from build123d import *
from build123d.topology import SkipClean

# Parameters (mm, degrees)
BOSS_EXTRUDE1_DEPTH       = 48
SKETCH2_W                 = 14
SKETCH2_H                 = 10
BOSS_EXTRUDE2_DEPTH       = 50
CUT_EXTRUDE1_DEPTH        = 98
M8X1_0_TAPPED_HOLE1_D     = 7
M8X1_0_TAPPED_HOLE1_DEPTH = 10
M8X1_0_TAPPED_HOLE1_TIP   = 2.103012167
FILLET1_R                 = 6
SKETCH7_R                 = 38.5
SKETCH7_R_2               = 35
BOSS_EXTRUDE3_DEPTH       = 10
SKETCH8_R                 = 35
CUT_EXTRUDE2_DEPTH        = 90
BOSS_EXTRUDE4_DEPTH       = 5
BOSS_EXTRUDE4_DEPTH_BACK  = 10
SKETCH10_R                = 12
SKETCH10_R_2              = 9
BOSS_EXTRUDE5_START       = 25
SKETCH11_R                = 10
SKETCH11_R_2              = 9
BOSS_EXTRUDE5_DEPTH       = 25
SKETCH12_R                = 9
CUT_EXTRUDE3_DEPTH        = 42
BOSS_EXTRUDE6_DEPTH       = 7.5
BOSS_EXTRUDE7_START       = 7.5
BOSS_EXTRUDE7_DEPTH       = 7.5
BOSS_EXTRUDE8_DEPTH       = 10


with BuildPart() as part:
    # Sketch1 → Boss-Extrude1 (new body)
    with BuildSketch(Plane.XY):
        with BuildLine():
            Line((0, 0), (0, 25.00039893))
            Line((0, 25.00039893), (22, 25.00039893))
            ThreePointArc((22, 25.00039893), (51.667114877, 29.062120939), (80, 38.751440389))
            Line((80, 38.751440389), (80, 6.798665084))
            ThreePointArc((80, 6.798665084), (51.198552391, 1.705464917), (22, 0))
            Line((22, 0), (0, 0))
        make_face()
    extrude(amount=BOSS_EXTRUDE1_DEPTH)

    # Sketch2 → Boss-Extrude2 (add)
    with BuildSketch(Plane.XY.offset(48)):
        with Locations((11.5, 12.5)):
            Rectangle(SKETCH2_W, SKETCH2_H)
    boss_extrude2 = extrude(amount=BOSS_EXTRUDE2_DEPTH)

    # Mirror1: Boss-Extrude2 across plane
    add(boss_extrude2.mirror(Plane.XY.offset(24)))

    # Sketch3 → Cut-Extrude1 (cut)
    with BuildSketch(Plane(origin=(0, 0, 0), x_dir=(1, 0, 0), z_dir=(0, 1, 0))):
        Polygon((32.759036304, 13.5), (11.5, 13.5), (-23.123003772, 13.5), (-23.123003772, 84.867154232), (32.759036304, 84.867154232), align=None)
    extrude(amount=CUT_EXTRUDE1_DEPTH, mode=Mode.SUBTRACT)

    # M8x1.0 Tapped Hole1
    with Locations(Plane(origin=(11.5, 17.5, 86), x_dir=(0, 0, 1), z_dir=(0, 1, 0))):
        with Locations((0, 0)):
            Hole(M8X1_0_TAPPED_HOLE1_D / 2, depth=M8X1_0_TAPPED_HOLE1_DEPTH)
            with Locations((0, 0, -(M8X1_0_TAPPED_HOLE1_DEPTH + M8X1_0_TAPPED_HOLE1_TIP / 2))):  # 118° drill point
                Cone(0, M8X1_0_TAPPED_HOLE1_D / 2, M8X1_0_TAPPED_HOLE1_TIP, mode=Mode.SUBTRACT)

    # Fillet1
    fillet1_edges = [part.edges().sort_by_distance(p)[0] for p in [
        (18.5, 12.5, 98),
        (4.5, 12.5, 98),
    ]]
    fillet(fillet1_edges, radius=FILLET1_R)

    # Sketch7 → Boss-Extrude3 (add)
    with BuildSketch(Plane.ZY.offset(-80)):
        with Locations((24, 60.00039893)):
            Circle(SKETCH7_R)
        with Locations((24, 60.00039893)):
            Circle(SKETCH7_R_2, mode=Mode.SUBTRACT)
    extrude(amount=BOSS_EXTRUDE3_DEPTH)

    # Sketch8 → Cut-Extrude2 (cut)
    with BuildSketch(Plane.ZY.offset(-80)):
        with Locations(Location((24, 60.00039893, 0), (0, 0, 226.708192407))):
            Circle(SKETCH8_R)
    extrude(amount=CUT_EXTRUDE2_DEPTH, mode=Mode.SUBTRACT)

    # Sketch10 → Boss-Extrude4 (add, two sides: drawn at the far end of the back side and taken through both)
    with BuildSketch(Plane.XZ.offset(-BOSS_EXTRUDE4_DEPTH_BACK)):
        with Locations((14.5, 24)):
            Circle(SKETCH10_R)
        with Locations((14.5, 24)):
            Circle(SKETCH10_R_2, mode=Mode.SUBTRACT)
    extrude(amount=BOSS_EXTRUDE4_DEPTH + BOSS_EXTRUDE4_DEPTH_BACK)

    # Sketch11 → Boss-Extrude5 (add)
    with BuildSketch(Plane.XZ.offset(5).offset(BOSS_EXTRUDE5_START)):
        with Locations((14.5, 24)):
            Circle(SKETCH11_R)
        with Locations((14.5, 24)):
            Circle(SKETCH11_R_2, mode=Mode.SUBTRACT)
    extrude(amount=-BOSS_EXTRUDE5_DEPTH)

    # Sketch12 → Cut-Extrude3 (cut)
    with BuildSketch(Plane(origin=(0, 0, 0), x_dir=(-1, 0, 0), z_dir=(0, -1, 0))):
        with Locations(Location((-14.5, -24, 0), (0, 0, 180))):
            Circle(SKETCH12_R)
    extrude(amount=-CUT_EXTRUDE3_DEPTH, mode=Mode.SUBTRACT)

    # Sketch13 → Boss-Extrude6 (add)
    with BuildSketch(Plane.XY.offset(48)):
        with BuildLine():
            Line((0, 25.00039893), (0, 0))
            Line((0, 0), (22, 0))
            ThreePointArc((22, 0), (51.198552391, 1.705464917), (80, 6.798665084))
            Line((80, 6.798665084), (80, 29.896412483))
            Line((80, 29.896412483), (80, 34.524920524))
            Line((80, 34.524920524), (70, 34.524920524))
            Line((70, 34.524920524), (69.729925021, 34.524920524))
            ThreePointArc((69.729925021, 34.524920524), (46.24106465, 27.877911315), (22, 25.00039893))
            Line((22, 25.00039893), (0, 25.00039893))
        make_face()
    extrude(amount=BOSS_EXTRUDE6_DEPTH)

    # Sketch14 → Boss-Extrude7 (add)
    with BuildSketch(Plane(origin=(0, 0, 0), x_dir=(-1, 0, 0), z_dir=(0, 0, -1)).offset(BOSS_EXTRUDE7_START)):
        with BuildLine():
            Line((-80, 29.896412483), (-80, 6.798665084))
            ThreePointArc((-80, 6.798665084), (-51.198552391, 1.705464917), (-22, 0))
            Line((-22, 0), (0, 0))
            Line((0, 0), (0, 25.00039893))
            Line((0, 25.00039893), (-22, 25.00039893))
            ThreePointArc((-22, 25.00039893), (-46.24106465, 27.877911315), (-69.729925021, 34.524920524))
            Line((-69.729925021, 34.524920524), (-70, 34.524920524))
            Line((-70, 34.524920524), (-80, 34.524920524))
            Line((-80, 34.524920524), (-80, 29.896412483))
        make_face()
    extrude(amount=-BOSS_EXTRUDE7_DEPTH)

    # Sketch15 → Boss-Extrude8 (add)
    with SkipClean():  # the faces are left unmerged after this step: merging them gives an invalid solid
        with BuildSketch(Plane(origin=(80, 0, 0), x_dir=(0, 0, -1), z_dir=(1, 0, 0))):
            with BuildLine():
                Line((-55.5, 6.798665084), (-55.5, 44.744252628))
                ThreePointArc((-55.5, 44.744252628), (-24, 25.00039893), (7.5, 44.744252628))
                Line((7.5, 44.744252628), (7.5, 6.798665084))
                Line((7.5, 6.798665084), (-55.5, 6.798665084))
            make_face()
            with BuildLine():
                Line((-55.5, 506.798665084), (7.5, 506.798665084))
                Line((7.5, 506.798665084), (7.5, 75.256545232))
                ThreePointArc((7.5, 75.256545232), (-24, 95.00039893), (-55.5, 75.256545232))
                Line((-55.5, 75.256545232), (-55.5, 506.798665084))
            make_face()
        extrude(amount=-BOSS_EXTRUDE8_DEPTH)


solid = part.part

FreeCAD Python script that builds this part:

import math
import FreeCAD as App
import Part
import Sketcher
from FreeCAD import Vector
Q = App.Units.Quantity


def edges_at(feature, points):
    """Names of the edges that pass closest to the given points."""
    edges = feature.Shape.Edges
    near = lambda p: min(range(len(edges)), key=lambda i: edges[i].distToShape(Part.Vertex(*p))[0])
    return sorted({f"Edge{near(p) + 1}" for p in points})


def add_polygon(sketch, points):
    """Adds a closed chain of lines whose ends are joined by coincident constraints."""
    first, n = sketch.GeometryCount, len(points)
    for a, b in zip(points, points[1:] + points[:1]):
        sketch.addGeometry(Part.LineSegment(App.Vector(*a, 0), App.Vector(*b, 0)), False)
    for i in range(n):
        sketch.addConstraint(Sketcher.Constraint("Coincident", first + i, 2, first + (i + 1) % n, 1))

doc = App.newDocument("Part")
body = doc.addObject("PartDesign::Body", "Body")

# Sketch on XY plane
sketch1 = body.newObject("Sketcher::SketchObject", "Sketch")
sketch1.AttachmentSupport = (doc.getObject("XY_Plane"), [""])
sketch1.MapMode = "FlatFace"
sketch1.addGeometry([
    Part.LineSegment(Vector(0, 25, 0), Vector(0, 0, 0)),  # 0
    Part.LineSegment(Vector(0, 0, 0), Vector(22, 0, 0)),  # 1
    Part.ArcOfCircle(Part.Circle(Vector(22, 251, 0), Vector(0, 0, 1), 251), math.radians(-90), math.radians(-76.63)),  # 2
    Part.LineSegment(Vector(80, 7, 0), Vector(80, 39, 0)),  # 3
    Part.ArcOfCircle(Part.Circle(Vector(16, 180, 0), Vector(0, 0, 1), 155), math.radians(-88), math.radians(-66)),  # 4
    Part.LineSegment(Vector(22, 25, 0), Vector(0, 25, 0)),  # 5
], False)
sketch1.addConstraint([
    Sketcher.Constraint("Coincident", 0, 2, 1, 1),
    Sketcher.Constraint("Tangent", 1, 2, 2, 1),
    Sketcher.Constraint("Coincident", 2, 2, 3, 1),
    Sketcher.Constraint("Coincident", 3, 2, 4, 2),
    Sketcher.Constraint("Coincident", 4, 1, 5, 1),
    Sketcher.Constraint("Coincident", 5, 2, 0, 1),
    Sketcher.Constraint("Vertical", 0),
    Sketcher.Constraint("Horizontal", 1),
    Sketcher.Constraint("Vertical", 3),
    Sketcher.Constraint("Horizontal", 5),
    Sketcher.Constraint("Coincident", 0, 2, -1, 1),
    Sketcher.Constraint("Vertical", 1, 2, 4, 1),
    Sketcher.Constraint("DistanceX", 1, 1, 1, 2, Q("22 mm")),
    Sketcher.Constraint("DistanceX", -1, 1, 2, 2, Q("80 mm")),
    Sketcher.Constraint("Radius", 2, Q("250.800841 mm")),
    Sketcher.Constraint("Radius", 4, Q("155.03067 mm")),
    Sketcher.Constraint("DistanceY", 0, 2, 0, 1, Q("25.000399 mm")),
    Sketcher.Constraint("DistanceY", 3, 2, 2, 3, Q("212.049401 mm")),
])
pad1 = body.newObject("PartDesign::Pad", "Pad")
pad1.Profile = sketch1
pad1.Length = 48

# Sketch on XY plane
sketch2 = body.newObject("Sketcher::SketchObject", "Sketch001")
sketch2.AttachmentSupport = (doc.getObject("XY_Plane"), [""])
sketch2.MapMode = "FlatFace"
sketch2.AttachmentOffset = App.Placement(Vector(0, 0, 48), App.Rotation())
add_polygon(sketch2, [(4, 18), (4, 8), (18, 8), (18, 18)])  # lines 0-3
sketch2.addConstraint([
    Sketcher.Constraint("Vertical", 0),
    Sketcher.Constraint("Horizontal", 1),
    Sketcher.Constraint("Vertical", 2),
    Sketcher.Constraint("Horizontal", 3),
    Sketcher.Constraint("DistanceX", 1, 1, 1, 2, Q("14 mm")),
    Sketcher.Constraint("DistanceY", 0, 2, 0, 1, Q("10 mm")),
    Sketcher.Constraint("DistanceX", -1, 1, 0, 2, Q("4.5 mm")),
    Sketcher.Constraint("DistanceY", -1, 1, 0, 2, Q("7.5 mm")),
])
pad2 = body.newObject("PartDesign::Pad", "Pad001")
pad2.Profile = sketch2
pad2.Length = 50
doc.recompute()

datumplane = body.newObject("PartDesign::Plane", "DatumPlane")
datumplane.AttachmentSupport = (doc.getObject("XY_Plane"), [""])
datumplane.MapMode = "FlatFace"
datumplane.AttachmentOffset = App.Placement(Vector(0, 0, 24), App.Rotation())
mirrored = body.newObject("PartDesign::Mirrored", "Mirrored")
mirrored.Originals = [pad2]
mirrored.MirrorPlane = (datumplane, [""])
body.Tip = mirrored

# Sketch on XZ plane
sketch3 = body.newObject("Sketcher::SketchObject", "Sketch002")
sketch3.AttachmentSupport = (doc.getObject("XZ_Plane"), [""])
sketch3.MapMode = "FlatFace"
add_polygon(sketch3, [(-23, -14), (33, -14), (33, -85), (-23, -85)])  # lines 0-3
sketch3.addConstraint([
    Sketcher.Constraint("Horizontal", 0),
    Sketcher.Constraint("Vertical", 1),
    Sketcher.Constraint("Horizontal", 2),
    Sketcher.Constraint("Vertical", 3),
    Sketcher.Constraint("DistanceY", 0, 2, -1, 1, Q("13.5 mm")),
    Sketcher.Constraint("DistanceX", 0, 1, 0, 2, Q("55.88204 mm")),
    Sketcher.Constraint("DistanceY", 1, 2, 1, 1, Q("71.367154 mm")),
    Sketcher.Constraint("DistanceX", -1, 1, 0, 2, Q("32.759036 mm")),
])
pocket1 = body.newObject("PartDesign::Pocket", "Pocket")
pocket1.Profile = sketch3
pocket1.Length = 98

# Sketch on XZ plane
sketch4 = body.newObject("Sketcher::SketchObject", "Sketch003")
sketch4.AttachmentSupport = (doc.getObject("XZ_Plane"), [""])
sketch4.MapMode = "FlatFace"
sketch4.AttachmentOffset = App.Placement(Vector(0, 0, -17.5), App.Rotation())
sketch4.addGeometry(Part.Circle(Vector(11.5, 86, 0), Vector(0, 0, 1), 3.5), False)
sketch4.addConstraint([
    Sketcher.Constraint("Diameter", 0, Q("7 mm")),
    Sketcher.Constraint("DistanceY", -1, 1, 0, 3, Q("86 mm")),
    Sketcher.Constraint("DistanceX", -1, 1, 0, 3, Q("11.5 mm")),
])
doc.recompute()
hole = body.newObject("PartDesign::Hole", "Hole")
hole.Profile = sketch4
hole.ThreadType = "None"
hole.Diameter = 7
hole.DepthType = "Dimension"
hole.Depth = 10
hole.DrillPoint = "Angled"
hole.DrillPointAngle = 118
hole.Reversed = True
doc.recompute()

fillet = body.newObject("PartDesign::Fillet", "Fillet")
fillet.Base = (hole, edges_at(hole, [(18.5, 12.5, 98), (4.5, 12.5, 98)]))
fillet.Radius = 6

# Sketch on YZ plane
sketch5 = body.newObject("Sketcher::SketchObject", "Sketch004")
sketch5.AttachmentSupport = (doc.getObject("YZ_Plane"), [""])
sketch5.MapMode = "FlatFace"
sketch5.AttachmentOffset = App.Placement(Vector(0, 0, 80), App.Rotation())
sketch5.addGeometry([
    Part.Circle(Vector(60, 24, 0), Vector(0, 0, 1), 38),
    Part.Circle(Vector(60, 24, 0), Vector(0, 0, 1), 35),
], False)
sketch5.addConstraint([
    Sketcher.Constraint("Coincident", 1, 3, 0, 3),
    Sketcher.Constraint("Diameter", 0, Q("77 mm")),
    Sketcher.Constraint("Diameter", 1, Q("70 mm")),
    Sketcher.Constraint("DistanceY", -1, 1, 0, 3, Q("24 mm")),
    Sketcher.Constraint("DistanceX", -1, 1, 0, 3, Q("60.000399 mm")),
])
pad3 = body.newObject("PartDesign::Pad", "Pad002")
pad3.Profile = sketch5
pad3.Length = 10
pad3.Reversed = True

# Sketch on YZ plane
sketch6 = body.newObject("Sketcher::SketchObject", "Sketch005")
sketch6.AttachmentSupport = (doc.getObject("YZ_Plane"), [""])
sketch6.MapMode = "FlatFace"
sketch6.AttachmentOffset = App.Placement(Vector(0, 0, 80), App.Rotation())
sketch6.addGeometry(Part.Circle(Vector(60, 24, 0), Vector(0, 0, 1), 35), False)
sketch6.addConstraint([
    Sketcher.Constraint("Diameter", 0, Q("70 mm")),
    Sketcher.Constraint("DistanceY", -1, 1, 0, 3, Q("24 mm")),
    Sketcher.Constraint("DistanceX", -1, 1, 0, 3, Q("60.000399 mm")),
])
pocket2 = body.newObject("PartDesign::Pocket", "Pocket001")
pocket2.Profile = sketch6
pocket2.Length = 90

# Sketch on XZ plane
sketch7 = body.newObject("Sketcher::SketchObject", "Sketch006")
sketch7.AttachmentSupport = (doc.getObject("XZ_Plane"), [""])
sketch7.MapMode = "FlatFace"
sketch7.addGeometry([
    Part.Circle(Vector(14, 24, 0), Vector(0, 0, 1), 12),
    Part.Circle(Vector(14, 24, 0), Vector(0, 0, 1), 9),
], False)
sketch7.addConstraint([
    Sketcher.Constraint("Coincident", 1, 3, 0, 3),
    Sketcher.Constraint("Diameter", 0, Q("24 mm")),
    Sketcher.Constraint("Diameter", 1, Q("18 mm")),
    Sketcher.Constraint("DistanceY", -1, 1, 0, 3, Q("24 mm")),
    Sketcher.Constraint("DistanceX", -1, 1, 0, 3, Q("14.5 mm")),
])
pad4 = body.newObject("PartDesign::Pad", "Pad003")
pad4.Profile = sketch7
pad4.Type = "TwoLengths"
pad4.Length = 5
pad4.Length2 = 10

# Sketch on XZ plane
sketch8 = body.newObject("Sketcher::SketchObject", "Sketch007")
sketch8.AttachmentSupport = (doc.getObject("XZ_Plane"), [""])
sketch8.MapMode = "FlatFace"
sketch8.AttachmentOffset = App.Placement(Vector(0, 0, 30), App.Rotation())
sketch8.addGeometry([
    Part.Circle(Vector(14, 24, 0), Vector(0, 0, 1), 10),
    Part.Circle(Vector(14, 24, 0), Vector(0, 0, 1), 9),
], False)
sketch8.addConstraint([
    Sketcher.Constraint("Coincident", 1, 3, 0, 3),
    Sketcher.Constraint("Diameter", 0, Q("20 mm")),
    Sketcher.Constraint("Diameter", 1, Q("18 mm")),
    Sketcher.Constraint("DistanceY", -1, 1, 0, 3, Q("24 mm")),
    Sketcher.Constraint("DistanceX", -1, 1, 0, 3, Q("14.5 mm")),
])
pad5 = body.newObject("PartDesign::Pad", "Pad004")
pad5.Profile = sketch8
pad5.Length = 25
pad5.Reversed = True

# Sketch on XZ plane
sketch9 = body.newObject("Sketcher::SketchObject", "Sketch008")
sketch9.AttachmentSupport = (doc.getObject("XZ_Plane"), [""])
sketch9.MapMode = "FlatFace"
sketch9.addGeometry(Part.Circle(Vector(14, 24, 0), Vector(0, 0, 1), 9), False)
sketch9.addConstraint([
    Sketcher.Constraint("Diameter", 0, Q("18 mm")),
    Sketcher.Constraint("DistanceY", -1, 1, 0, 3, Q("24 mm")),
    Sketcher.Constraint("DistanceX", -1, 1, 0, 3, Q("14.5 mm")),
])
pocket3 = body.newObject("PartDesign::Pocket", "Pocket002")
pocket3.Profile = sketch9
pocket3.Length = 42

# Sketch on XY plane
sketch10 = body.newObject("Sketcher::SketchObject", "Sketch009")
sketch10.AttachmentSupport = (doc.getObject("XY_Plane"), [""])
sketch10.MapMode = "FlatFace"
sketch10.AttachmentOffset = App.Placement(Vector(0, 0, 48), App.Rotation())
sketch10.addGeometry([
    Part.LineSegment(Vector(0, 25, 0), Vector(0, 0, 0)),  # 0
    Part.LineSegment(Vector(0, 0, 0), Vector(22, 0, 0)),  # 1
    Part.ArcOfCircle(Part.Circle(Vector(22, 251, 0), Vector(0, 0, 1), 251), math.radians(-90), math.radians(-76.63)),  # 2
    Part.LineSegment(Vector(80, 7, 0), Vector(80, 35, 0)),  # 3
    Part.LineSegment(Vector(80, 35, 0), Vector(70, 35, 0)),  # 4
    Part.ArcOfCircle(Part.Circle(Vector(16, 180, 0), Vector(0, 0, 1), 155), math.radians(-87.75), math.radians(-69.68)),  # 5
    Part.LineSegment(Vector(22, 25, 0), Vector(0, 25, 0)),  # 6
], False)
sketch10.addConstraint([
    Sketcher.Constraint("Coincident", 0, 2, 1, 1),
    Sketcher.Constraint("Tangent", 1, 2, 2, 1),
    Sketcher.Constraint("Coincident", 2, 2, 3, 1),
    Sketcher.Constraint("Coincident", 3, 2, 4, 1),
    Sketcher.Constraint("Coincident", 4, 2, 5, 2),
    Sketcher.Constraint("Coincident", 5, 1, 6, 1),
    Sketcher.Constraint("Coincident", 6, 2, 0, 1),
    Sketcher.Constraint("Vertical", 0),
    Sketcher.Constraint("Horizontal", 1),
    Sketcher.Constraint("Vertical", 3),
    Sketcher.Constraint("Horizontal", 4),
    Sketcher.Constraint("Horizontal", 6),
    Sketcher.Constraint("Coincident", 0, 2, -1, 1),
    Sketcher.Constraint("Vertical", 1, 2, 5, 1),
    Sketcher.Constraint("DistanceX", 1, 1, 1, 2, Q("22 mm")),
    Sketcher.Constraint("DistanceX", -1, 1, 2, 2, Q("80 mm")),
    Sketcher.Constraint("Radius", 2, Q("250.800841 mm")),
    Sketcher.Constraint("Radius", 5, Q("155.03067 mm")),
    Sketcher.Constraint("DistanceY", 0, 2, 0, 1, Q("25.000399 mm")),
    Sketcher.Constraint("DistanceX", 4, 2, 4, 1, Q("10.270075 mm")),
    Sketcher.Constraint("DistanceY", 3, 1, 3, 2, Q("27.726255 mm")),
])
pad6 = body.newObject("PartDesign::Pad", "Pad005")
pad6.Profile = sketch10
pad6.Length = 7.5

# Sketch on XY plane
sketch11 = body.newObject("Sketcher::SketchObject", "Sketch010")
sketch11.AttachmentSupport = (doc.getObject("XY_Plane"), [""])
sketch11.MapMode = "FlatFace"
sketch11.AttachmentOffset = App.Placement(Vector(0, 0, -7.5), App.Rotation())
sketch11.addGeometry([
    Part.ArcOfCircle(Part.Circle(Vector(22, 251, 0), Vector(0, 0, 1), 251), math.radians(-90), math.radians(-76.63)),  # 0
    Part.LineSegment(Vector(22, 0, 0), Vector(0, 0, 0)),  # 1
    Part.LineSegment(Vector(0, 0, 0), Vector(0, 25, 0)),  # 2
    Part.LineSegment(Vector(0, 25, 0), Vector(22, 25, 0)),  # 3
    Part.ArcOfCircle(Part.Circle(Vector(16, 180, 0), Vector(0, 0, 1), 155), math.radians(-87.75), math.radians(-69.68)),  # 4
    Part.LineSegment(Vector(70, 35, 0), Vector(80, 35, 0)),  # 5
    Part.LineSegment(Vector(80, 35, 0), Vector(80, 7, 0)),  # 6
], False)
sketch11.addConstraint([
    Sketcher.Constraint("Tangent", 0, 1, 1, 1),
    Sketcher.Constraint("Coincident", 1, 2, 2, 1),
    Sketcher.Constraint("Coincident", 2, 2, 3, 1),
    Sketcher.Constraint("Coincident", 3, 2, 4, 1),
    Sketcher.Constraint("Coincident", 4, 2, 5, 1),
    Sketcher.Constraint("Coincident", 5, 2, 6, 1),
    Sketcher.Constraint("Coincident", 6, 2, 0, 2),
    Sketcher.Constraint("Horizontal", 1),
    Sketcher.Constraint("Vertical", 2),
    Sketcher.Constraint("Horizontal", 3),
    Sketcher.Constraint("Horizontal", 5),
    Sketcher.Constraint("Vertical", 6),
    Sketcher.Constraint("Coincident", 1, 2, -1, 1),
    Sketcher.Constraint("Vertical", 0, 1, 3, 2),
    Sketcher.Constraint("DistanceX", 1, 2, 1, 1, Q("22 mm")),
    Sketcher.Constraint("DistanceX", -1, 1, 5, 2, Q("80 mm")),
    Sketcher.Constraint("Radius", 0, Q("250.800841 mm")),
    Sketcher.Constraint("Radius", 4, Q("155.03067 mm")),
    Sketcher.Constraint("DistanceY", 2, 1, 2, 2, Q("25.000399 mm")),
    Sketcher.Constraint("DistanceX", 5, 1, 5, 2, Q("10.270075 mm")),
    Sketcher.Constraint("DistanceY", 6, 2, 6, 1, Q("27.726255 mm")),
])
pad7 = body.newObject("PartDesign::Pad", "Pad006")
pad7.Profile = sketch11
pad7.Length = 7.5

# Sketch on YZ plane
sketch12 = body.newObject("Sketcher::SketchObject", "Sketch011")
sketch12.AttachmentSupport = (doc.getObject("YZ_Plane"), [""])
sketch12.MapMode = "FlatFace"
sketch12.AttachmentOffset = App.Placement(Vector(0, 0, 80), App.Rotation())
sketch12.addGeometry([
    Part.LineSegment(Vector(45, 56, 0), Vector(7, 56, 0)),  # 0
    Part.LineSegment(Vector(7, 56, 0), Vector(7, -8, 0)),  # 1
    Part.LineSegment(Vector(7, -8, 0), Vector(45, -8, 0)),  # 2
    Part.ArcOfCircle(Part.Circle(Vector(60, 24, 0), Vector(0, 0, 1), 35), math.radians(116), math.radians(244)),  # 3
    Part.LineSegment(Vector(507, -8, 0), Vector(507, 56, 0)),  # 4
    Part.LineSegment(Vector(507, 56, 0), Vector(75, 56, 0)),  # 5
    Part.ArcOfCircle(Part.Circle(Vector(60, 24, 0), Vector(0, 0, 1), 35), math.radians(-64), math.radians(64)),  # 6
    Part.LineSegment(Vector(75, -8, 0), Vector(507, -8, 0)),  # 7
], False)
sketch12.addConstraint([
    Sketcher.Constraint("Coincident", 0, 2, 1, 1),
    Sketcher.Constraint("Coincident", 1, 2, 2, 1),
    Sketcher.Constraint("Coincident", 2, 2, 3, 2),
    Sketcher.Constraint("Coincident", 3, 1, 0, 1),
    Sketcher.Constraint("Coincident", 4, 2, 5, 1),
    Sketcher.Constraint("Coincident", 5, 2, 6, 2),
    Sketcher.Constraint("Coincident", 6, 1, 7, 1),
    Sketcher.Constraint("Coincident", 7, 2, 4, 1),
    Sketcher.Constraint("Horizontal", 0),
    Sketcher.Constraint("Vertical", 1),
    Sketcher.Constraint("Horizontal", 2),
    Sketcher.Constraint("Vertical", 4),
    Sketcher.Constraint("Horizontal", 5),
    Sketcher.Constraint("Horizontal", 7),
    Sketcher.Constraint("Coincident", 6, 3, 3, 3),
    Sketcher.Constraint("Equal", 3, 6),
    Sketcher.Constraint("Horizontal", 3, 1, 4, 2),
    Sketcher.Constraint("Horizontal", 2, 2, 6, 1),
    Sketcher.Constraint("Vertical", 2, 2, 3, 1),
    Sketcher.Constraint("Radius", 3, Q("35 mm")),
    Sketcher.Constraint("DistanceY", 1, 2, 1, 1, Q("63 mm")),
    Sketcher.Constraint("DistanceY", -1, 1, 3, 3, Q("24 mm")),
    Sketcher.Constraint("DistanceX", 0, 2, 4, 2, Q("500 mm")),
    Sketcher.Constraint("DistanceX", 5, 2, 5, 1, Q("431.54212 mm")),
    Sketcher.Constraint("DistanceX", -1, 1, 3, 3, Q("60.000399 mm")),
])
pad8 = body.newObject("PartDesign::Pad", "Pad007")
pad8.Profile = sketch12
pad8.Length = 10
pad8.Reversed = True

doc.recompute()
